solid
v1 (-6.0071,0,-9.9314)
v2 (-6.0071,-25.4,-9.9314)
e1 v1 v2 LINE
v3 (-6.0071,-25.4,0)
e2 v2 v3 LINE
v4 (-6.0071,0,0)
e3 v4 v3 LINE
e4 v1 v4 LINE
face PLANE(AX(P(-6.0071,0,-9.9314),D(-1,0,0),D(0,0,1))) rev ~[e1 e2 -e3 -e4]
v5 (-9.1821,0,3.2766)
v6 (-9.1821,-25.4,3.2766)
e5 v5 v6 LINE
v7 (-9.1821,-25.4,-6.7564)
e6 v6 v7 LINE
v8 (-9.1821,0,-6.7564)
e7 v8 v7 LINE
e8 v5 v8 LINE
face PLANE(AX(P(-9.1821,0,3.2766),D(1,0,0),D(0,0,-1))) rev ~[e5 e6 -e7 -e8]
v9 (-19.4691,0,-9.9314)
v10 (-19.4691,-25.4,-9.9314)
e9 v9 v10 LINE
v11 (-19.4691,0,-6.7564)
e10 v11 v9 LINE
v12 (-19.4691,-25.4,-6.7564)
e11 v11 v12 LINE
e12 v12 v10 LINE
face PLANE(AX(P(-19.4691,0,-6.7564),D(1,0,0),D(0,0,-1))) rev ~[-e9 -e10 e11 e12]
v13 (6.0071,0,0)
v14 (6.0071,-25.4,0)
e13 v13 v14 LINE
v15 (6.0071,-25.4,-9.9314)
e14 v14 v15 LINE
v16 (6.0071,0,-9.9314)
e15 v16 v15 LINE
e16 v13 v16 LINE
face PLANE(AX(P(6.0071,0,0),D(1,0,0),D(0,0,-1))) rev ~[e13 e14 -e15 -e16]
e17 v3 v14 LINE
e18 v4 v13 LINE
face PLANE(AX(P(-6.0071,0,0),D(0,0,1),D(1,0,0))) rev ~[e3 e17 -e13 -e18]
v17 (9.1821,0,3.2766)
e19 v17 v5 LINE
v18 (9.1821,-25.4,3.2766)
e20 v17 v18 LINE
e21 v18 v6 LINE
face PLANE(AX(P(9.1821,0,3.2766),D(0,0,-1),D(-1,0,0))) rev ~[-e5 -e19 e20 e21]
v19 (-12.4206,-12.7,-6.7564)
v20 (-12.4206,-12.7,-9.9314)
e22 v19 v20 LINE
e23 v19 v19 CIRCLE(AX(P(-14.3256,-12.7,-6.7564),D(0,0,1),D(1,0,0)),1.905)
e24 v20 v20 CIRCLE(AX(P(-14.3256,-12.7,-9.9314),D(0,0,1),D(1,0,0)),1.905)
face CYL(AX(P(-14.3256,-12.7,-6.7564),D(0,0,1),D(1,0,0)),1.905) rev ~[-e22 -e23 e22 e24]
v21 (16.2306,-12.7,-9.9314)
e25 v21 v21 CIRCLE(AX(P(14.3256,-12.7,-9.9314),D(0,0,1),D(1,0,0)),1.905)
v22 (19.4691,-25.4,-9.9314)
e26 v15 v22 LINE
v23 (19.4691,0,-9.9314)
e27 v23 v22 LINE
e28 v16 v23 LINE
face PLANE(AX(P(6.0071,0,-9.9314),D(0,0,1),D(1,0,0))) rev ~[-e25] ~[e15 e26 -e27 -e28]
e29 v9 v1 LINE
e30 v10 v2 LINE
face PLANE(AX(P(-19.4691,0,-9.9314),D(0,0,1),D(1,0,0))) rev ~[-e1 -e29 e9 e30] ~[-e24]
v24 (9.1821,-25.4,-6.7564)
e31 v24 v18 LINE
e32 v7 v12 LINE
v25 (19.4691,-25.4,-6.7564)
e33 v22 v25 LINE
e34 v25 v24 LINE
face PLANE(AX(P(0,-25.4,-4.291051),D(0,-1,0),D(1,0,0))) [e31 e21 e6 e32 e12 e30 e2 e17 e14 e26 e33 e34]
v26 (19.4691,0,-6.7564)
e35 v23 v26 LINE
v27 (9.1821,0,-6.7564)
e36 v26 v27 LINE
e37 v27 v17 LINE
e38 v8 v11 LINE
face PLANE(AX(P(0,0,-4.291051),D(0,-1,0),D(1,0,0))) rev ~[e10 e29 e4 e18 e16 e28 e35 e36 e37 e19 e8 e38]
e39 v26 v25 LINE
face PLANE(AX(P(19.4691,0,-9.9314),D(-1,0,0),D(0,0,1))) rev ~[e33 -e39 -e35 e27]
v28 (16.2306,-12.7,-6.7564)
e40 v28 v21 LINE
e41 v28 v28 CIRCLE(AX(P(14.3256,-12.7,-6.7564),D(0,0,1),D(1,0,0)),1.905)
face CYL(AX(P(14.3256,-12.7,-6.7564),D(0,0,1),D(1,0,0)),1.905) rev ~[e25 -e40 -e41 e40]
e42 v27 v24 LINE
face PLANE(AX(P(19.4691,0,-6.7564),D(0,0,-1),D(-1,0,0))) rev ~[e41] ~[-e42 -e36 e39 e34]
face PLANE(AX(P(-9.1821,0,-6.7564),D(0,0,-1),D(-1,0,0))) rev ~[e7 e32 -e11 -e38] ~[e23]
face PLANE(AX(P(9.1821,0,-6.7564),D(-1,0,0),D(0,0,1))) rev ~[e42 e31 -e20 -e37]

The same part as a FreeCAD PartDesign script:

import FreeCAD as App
import Part
import Sketcher
from FreeCAD import Vector
Q = App.Units.Quantity


def add_polygon(sketch, points):
    """Adds a closed chain of lines whose ends are joined by coincident constraints."""
    first, n = sketch.GeometryCount, len(points)
    for a, b in zip(points, points[1:] + points[:1]):
        sketch.addGeometry(Part.LineSegment(App.Vector(*a, 0), App.Vector(*b, 0)), False)
    for i in range(n):
        sketch.addConstraint(Sketcher.Constraint("Coincident", first + i, 2, first + (i + 1) % n, 1))

doc = App.newDocument("Part")
params = doc.addObject("Spreadsheet::Sheet", "Params")
for row, (alias, value) in enumerate([
    ("sketch1_width", "0.53 in"),
    ("sketch1_width2", "0.473 in"),
    ("sketch1_width3", "0.405 in"),
    ("sketch1_height", "0.391 in"),
    ("sketch1_height2", "0.125 in"),
    ("pad1_length", "1 in"),
    ("sketch2_diameter", "0.15 in"),
    ("pocket1_length", "1 in"),
], start=1):
    params.set(f"A{row}", alias)
    params.set(f"B{row}", "=" + value)
    params.setAlias(f"B{row}", alias)

body = doc.addObject("PartDesign::Body", "Body")

# Sketch on XZ plane
sketch1 = body.newObject("Sketcher::SketchObject", "Sketch")
sketch1.AttachmentSupport = (doc.getObject("XZ_Plane"), [""])
sketch1.MapMode = "FlatFace"
add_polygon(sketch1, [(-6.0071, 0), (6.0071, 0), (6.0071, -9.9314), (19.4691, -9.9314), (19.4691, -6.7564), (9.1821, -6.7564), (9.1821, 3.2766), (-9.1821, 3.2766), (-9.1821, -6.7564), (-19.4691, -6.7564), (-19.4691, -9.9314), (-6.0071, -9.9314)])  # lines 0-11
sketch1.addConstraint([
    Sketcher.Constraint("Horizontal", 0),
    Sketcher.Constraint("Vertical", 1),
    Sketcher.Constraint("Horizontal", 2),
    Sketcher.Constraint("Vertical", 3),
    Sketcher.Constraint("Horizontal", 4),
    Sketcher.Constraint("Vertical", 5),
    Sketcher.Constraint("Horizontal", 6),
    Sketcher.Constraint("Vertical", 7),
    Sketcher.Constraint("Horizontal", 8),
    Sketcher.Constraint("Vertical", 9),
    Sketcher.Constraint("Horizontal", 10),
    Sketcher.Constraint("Vertical", 11),
    Sketcher.Constraint("Symmetric", 0, 2, 11, 2, -1, 1),
    Sketcher.Constraint("Symmetric", 4, 2, 7, 2, -2),
    Sketcher.Constraint("Symmetric", 2, 2, 9, 2, -2),
    Sketcher.Constraint("DistanceX", 2, 1, 2, 2, Q("0.53 in")),
    Sketcher.Constraint("DistanceX", 0, 1, 0, 2, Q("0.473 in")),
    Sketcher.Constraint("DistanceX", 4, 2, 4, 1, Q("0.405 in")),
    Sketcher.Constraint("DistanceY", 1, 2, 1, 1, Q("0.391 in")),
    Sketcher.Constraint("DistanceY", 3, 1, 3, 2, Q("0.125 in")),
    Sketcher.Constraint("DistanceY", 5, 1, 5, 2, Q("0.395 in")),
])
sketch1.setExpression("Constraints[27]", "Params.sketch1_width")
sketch1.setExpression("Constraints[28]", "Params.sketch1_width2")
sketch1.setExpression("Constraints[29]", "Params.sketch1_width3")
sketch1.setExpression("Constraints[30]", "Params.sketch1_height")
sketch1.setExpression("Constraints[31]", "Params.sketch1_height2")
pad1 = body.newObject("PartDesign::Pad", "Pad")
pad1.Profile = sketch1
pad1.setExpression("Length", "Params.pad1_length")

# Sketch on XY plane
sketch2 = body.newObject("Sketcher::SketchObject", "Sketch001")
sketch2.AttachmentSupport = (doc.getObject("XY_Plane"), [""])
sketch2.MapMode = "FlatFace"
sketch2.AttachmentOffset = App.Placement(Vector(0, 0, -0.266 * 25.4), App.Rotation())
sketch2.addGeometry([
    Part.Circle(Vector(-14.3256, -12.7, 0), Vector(0, 0, 1), 1.905),
    Part.Circle(Vector(14.3256, -12.7, 0), Vector(0, 0, 1), 1.905),
], False)
sketch2.addConstraint([
    Sketcher.Constraint("Equal", 0, 1),
    Sketcher.Constraint("Symmetric", 0, 3, 1, 3, -2),
    Sketcher.Constraint("Diameter", 0, Q("0.15 in")),
    Sketcher.Constraint("DistanceY", 0, 3, -1, 1, Q("0.5 in")),
    Sketcher.Constraint("DistanceX", 0, 3, -1, 1, Q("0.564 in")),
])
sketch2.setExpression("Constraints[2]", "Params.sketch2_diameter")
pocket1 = body.newObject("PartDesign::Pocket", "Pocket")
pocket1.Profile = sketch2
pocket1.setExpression("Length", "Params.pocket1_length")

doc.recompute()
